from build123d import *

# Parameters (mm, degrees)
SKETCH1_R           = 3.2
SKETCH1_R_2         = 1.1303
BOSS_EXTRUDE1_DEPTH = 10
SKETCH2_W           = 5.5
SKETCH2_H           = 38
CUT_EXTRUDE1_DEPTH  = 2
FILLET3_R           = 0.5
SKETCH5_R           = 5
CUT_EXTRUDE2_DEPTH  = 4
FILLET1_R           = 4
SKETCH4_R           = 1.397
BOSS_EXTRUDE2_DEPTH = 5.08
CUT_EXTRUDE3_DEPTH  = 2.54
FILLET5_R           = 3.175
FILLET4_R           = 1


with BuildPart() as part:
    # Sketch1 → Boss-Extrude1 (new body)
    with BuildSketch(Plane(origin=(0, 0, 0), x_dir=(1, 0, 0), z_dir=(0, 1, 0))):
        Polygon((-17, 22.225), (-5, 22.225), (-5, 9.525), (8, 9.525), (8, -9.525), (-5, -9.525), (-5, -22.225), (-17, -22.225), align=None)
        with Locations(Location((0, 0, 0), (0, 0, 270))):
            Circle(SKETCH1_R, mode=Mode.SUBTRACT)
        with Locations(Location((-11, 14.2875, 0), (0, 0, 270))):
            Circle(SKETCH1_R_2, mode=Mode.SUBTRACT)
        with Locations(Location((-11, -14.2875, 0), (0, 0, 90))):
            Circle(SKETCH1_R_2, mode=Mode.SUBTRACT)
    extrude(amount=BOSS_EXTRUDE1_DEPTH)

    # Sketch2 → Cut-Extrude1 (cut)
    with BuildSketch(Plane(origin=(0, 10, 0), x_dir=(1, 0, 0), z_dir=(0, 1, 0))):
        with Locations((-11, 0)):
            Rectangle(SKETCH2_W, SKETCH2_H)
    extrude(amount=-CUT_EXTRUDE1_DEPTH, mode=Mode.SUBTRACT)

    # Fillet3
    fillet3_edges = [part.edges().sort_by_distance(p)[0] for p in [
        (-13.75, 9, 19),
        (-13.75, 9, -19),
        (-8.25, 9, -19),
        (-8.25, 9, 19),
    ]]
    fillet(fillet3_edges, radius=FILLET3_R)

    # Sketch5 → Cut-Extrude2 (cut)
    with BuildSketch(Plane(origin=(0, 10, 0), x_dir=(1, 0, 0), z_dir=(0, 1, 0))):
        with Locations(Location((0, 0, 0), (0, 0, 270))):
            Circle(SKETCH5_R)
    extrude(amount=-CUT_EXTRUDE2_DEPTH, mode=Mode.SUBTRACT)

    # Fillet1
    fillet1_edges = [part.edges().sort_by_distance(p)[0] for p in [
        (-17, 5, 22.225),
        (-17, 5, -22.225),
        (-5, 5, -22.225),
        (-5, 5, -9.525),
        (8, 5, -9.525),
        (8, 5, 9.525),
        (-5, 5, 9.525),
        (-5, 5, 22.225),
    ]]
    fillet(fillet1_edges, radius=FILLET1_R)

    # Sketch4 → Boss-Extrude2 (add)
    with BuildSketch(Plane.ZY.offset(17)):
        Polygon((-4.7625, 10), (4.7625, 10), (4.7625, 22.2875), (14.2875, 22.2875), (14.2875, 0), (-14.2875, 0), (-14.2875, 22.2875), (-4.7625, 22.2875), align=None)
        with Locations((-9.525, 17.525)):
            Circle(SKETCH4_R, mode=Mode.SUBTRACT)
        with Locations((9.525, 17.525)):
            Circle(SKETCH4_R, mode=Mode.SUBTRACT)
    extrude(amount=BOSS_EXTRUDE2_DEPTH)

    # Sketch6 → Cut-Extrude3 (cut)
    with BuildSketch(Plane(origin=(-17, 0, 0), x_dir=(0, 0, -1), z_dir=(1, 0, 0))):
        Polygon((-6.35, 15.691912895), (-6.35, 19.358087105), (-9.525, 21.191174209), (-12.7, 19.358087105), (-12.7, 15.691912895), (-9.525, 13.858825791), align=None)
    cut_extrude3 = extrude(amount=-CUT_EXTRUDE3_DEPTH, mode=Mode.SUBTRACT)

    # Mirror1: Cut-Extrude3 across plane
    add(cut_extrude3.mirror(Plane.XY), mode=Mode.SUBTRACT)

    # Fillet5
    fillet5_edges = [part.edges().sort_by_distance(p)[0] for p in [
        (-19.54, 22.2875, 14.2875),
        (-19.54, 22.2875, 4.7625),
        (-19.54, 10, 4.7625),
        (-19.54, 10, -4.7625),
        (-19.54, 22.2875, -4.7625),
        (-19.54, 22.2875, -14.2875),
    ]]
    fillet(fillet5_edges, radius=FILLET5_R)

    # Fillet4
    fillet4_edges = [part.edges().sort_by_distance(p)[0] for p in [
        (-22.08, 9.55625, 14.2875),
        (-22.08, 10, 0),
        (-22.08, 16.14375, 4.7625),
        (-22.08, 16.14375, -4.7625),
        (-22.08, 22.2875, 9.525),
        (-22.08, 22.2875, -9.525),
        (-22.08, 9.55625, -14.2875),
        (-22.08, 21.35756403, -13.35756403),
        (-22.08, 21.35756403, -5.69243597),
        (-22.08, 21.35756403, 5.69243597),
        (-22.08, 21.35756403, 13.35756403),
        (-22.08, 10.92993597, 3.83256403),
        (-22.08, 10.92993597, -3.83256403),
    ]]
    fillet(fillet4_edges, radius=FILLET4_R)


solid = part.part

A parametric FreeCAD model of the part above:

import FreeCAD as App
import Part
import Sketcher
Q = App.Units.Quantity


def edges_at(feature, points):
    """Names of the edges that pass closest to the given points."""
    edges = feature.Shape.Edges
    near = lambda p: min(range(len(edges)), key=lambda i: edges[i].distToShape(Part.Vertex(*p))[0])
    return sorted({f"Edge{near(p) + 1}" for p in points})

doc = App.newDocument("Part")
body = doc.addObject("PartDesign::Body", "Body")

# Sketch on XZ plane
sketch1 = body.newObject("Sketcher::SketchObject", "Sketch")
sketch1.AttachmentSupport = (doc.getObject("XZ_Plane"), [""])
sketch1.MapMode = "FlatFace"
sketch1.addGeometry([
    Part.LineSegment(App.Vector(-5, -22.2, 0), App.Vector(-17, -22.2, 0)),  # 0
    Part.LineSegment(App.Vector(-17, -22.2, 0), App.Vector(-17, 22.2, 0)),  # 1
    Part.LineSegment(App.Vector(-17, 22.2, 0), App.Vector(-5, 22.2, 0)),  # 2
    Part.LineSegment(App.Vector(-5, 22.2, 0), App.Vector(-5, 9.5, 0)),  # 3
    Part.LineSegment(App.Vector(-5, 9.5, 0), App.Vector(8, 9.5, 0)),  # 4
    Part.LineSegment(App.Vector(8, 9.5, 0), App.Vector(8, -9.5, 0)),  # 5
    Part.LineSegment(App.Vector(8, -9.5, 0), App.Vector(-5, -9.5, 0)),  # 6
    Part.LineSegment(App.Vector(-5, -9.5, 0), App.Vector(-5, -22.2, 0)),  # 7
    Part.Circle(App.Vector(0, 0, 0), App.Vector(0, 0, 1), 3.2),  # 8
    Part.Circle(App.Vector(-11, 14.3, 0), App.Vector(0, 0, 1), 1.1),  # 9
    Part.Circle(App.Vector(-11, -14.3, 0), App.Vector(0, 0, 1), 1.1),  # 10
], False)
sketch1.addConstraint([
    Sketcher.Constraint("Coincident", 0, 2, 1, 1),
    Sketcher.Constraint("Coincident", 1, 2, 2, 1),
    Sketcher.Constraint("Coincident", 2, 2, 3, 1),
    Sketcher.Constraint("Coincident", 3, 2, 4, 1),
    Sketcher.Constraint("Coincident", 4, 2, 5, 1),
    Sketcher.Constraint("Coincident", 5, 2, 6, 1),
    Sketcher.Constraint("Coincident", 6, 2, 7, 1),
    Sketcher.Constraint("Coincident", 7, 2, 0, 1),
    Sketcher.Constraint("Horizontal", 0),
    Sketcher.Constraint("Vertical", 1),
    Sketcher.Constraint("Horizontal", 2),
    Sketcher.Constraint("Vertical", 3),
    Sketcher.Constraint("Horizontal", 4),
    Sketcher.Constraint("Vertical", 5),
    Sketcher.Constraint("Horizontal", 6),
    Sketcher.Constraint("Vertical", 7),
    Sketcher.Constraint("Coincident", 8, 3, -1, 1),
    Sketcher.Constraint("Equal", 9, 10),
    Sketcher.Constraint("Symmetric", 9, 3, 10, 3, -1),
    Sketcher.Constraint("Symmetric", 3, 2, 6, 2, -1),
    Sketcher.Constraint("Equal", 3, 7),
    Sketcher.Constraint("Diameter", 8, Q("6.4 mm")),
    Sketcher.Constraint("DistanceX", 0, 2, 0, 1, Q("12 mm")),
    Sketcher.Constraint("DistanceX", 4, 1, 4, 2, Q("13 mm")),
    Sketcher.Constraint("DistanceY", 3, 2, 3, 1, Q("12.7 mm")),
    Sketcher.Constraint("DistanceX", 9, 3, -1, 1, Q("11 mm")),
    Sketcher.Constraint("DistanceX", 0, 2, -1, 1, Q("17 mm")),
    Sketcher.Constraint("Diameter", 9, Q("2.2606 mm")),
    Sketcher.Constraint("DistanceY", 1, 1, 1, 2, Q("44.45 mm")),
    Sketcher.Constraint("DistanceY", 10, 3, 9, 3, Q("28.575 mm")),
])
pad1 = body.newObject("PartDesign::Pad", "Pad")
pad1.Profile = sketch1
pad1.Length = 10
pad1.Reversed = True

# Sketch on XZ plane
sketch2 = body.newObject("Sketcher::SketchObject", "Sketch001")
sketch2.AttachmentSupport = (doc.getObject("XZ_Plane"), [""])
sketch2.MapMode = "FlatFace"
sketch2.AttachmentOffset = App.Placement(App.Vector(0, 0, -10), App.Rotation())
sketch2.addGeometry([
    Part.LineSegment(App.Vector(-14, -19, 0), App.Vector(-14, 19, 0)),
    Part.LineSegment(App.Vector(-14, 19, 0), App.Vector(-8, 19, 0)),
    Part.LineSegment(App.Vector(-8, 19, 0), App.Vector(-8, -19, 0)),
    Part.LineSegment(App.Vector(-8, -19, 0), App.Vector(-14, -19, 0)),
], False)
sketch2.addConstraint([
    Sketcher.Constraint("Coincident", 0, 2, 1, 1),
    Sketcher.Constraint("Coincident", 1, 2, 2, 1),
    Sketcher.Constraint("Coincident", 2, 2, 3, 1),
    Sketcher.Constraint("Coincident", 3, 2, 0, 1),
    Sketcher.Constraint("Vertical", 0),
    Sketcher.Constraint("Horizontal", 1),
    Sketcher.Constraint("Vertical", 2),
    Sketcher.Constraint("Horizontal", 3),
    Sketcher.Constraint("DistanceY", 0, 1, 0, 2, Q("38 mm")),
    Sketcher.Constraint("DistanceX", 1, 1, 1, 2, Q("5.5 mm")),
    Sketcher.Constraint("DistanceY", -1, 1, 0, 2, Q("19 mm")),
    Sketcher.Constraint("DistanceX", 0, 2, -1, 1, Q("13.75 mm")),
])
pocket1 = body.newObject("PartDesign::Pocket", "Pocket")
pocket1.Profile = sketch2
pocket1.Length = 2
pocket1.Reversed = True
doc.recompute()

fillet = body.newObject("PartDesign::Fillet", "Fillet")
fillet.Base = (pocket1, edges_at(pocket1, [
    (-13.75, 9, 19),
    (-13.75, 9, -19),
    (-8.25, 9, -19),
    (-8.25, 9, 19),
]))
fillet.Radius = 0.5

# Sketch on XZ plane
sketch3 = body.newObject("Sketcher::SketchObject", "Sketch002")
sketch3.AttachmentSupport = (doc.getObject("XZ_Plane"), [""])
sketch3.MapMode = "FlatFace"
sketch3.AttachmentOffset = App.Placement(App.Vector(0, 0, -10), App.Rotation())
sketch3.addGeometry(Part.Circle(App.Vector(0, 0, 0), App.Vector(0, 0, 1), 5), False)
sketch3.addConstraint([
    Sketcher.Constraint("Coincident", 0, 3, -1, 1),
    Sketcher.Constraint("Diameter", 0, Q("10 mm")),
])
pocket2 = body.newObject("PartDesign::Pocket", "Pocket001")
pocket2.Profile = sketch3
pocket2.Length = 4
pocket2.Reversed = True
doc.recompute()

fillet2 = body.newObject("PartDesign::Fillet", "Fillet001")
fillet2.Base = (pocket2, edges_at(pocket2, [
    (-17, 5, 22.225),
    (-17, 5, -22.225),
    (-5, 5, -22.225),
    (-5, 5, -9.525),
    (8, 5, -9.525),
    (8, 5, 9.525),
    (-5, 5, 9.525),
    (-5, 5, 22.225),
]))
fillet2.Radius = 4

# Sketch on YZ plane
sketch4 = body.newObject("Sketcher::SketchObject", "Sketch003")
sketch4.AttachmentSupport = (doc.getObject("YZ_Plane"), [""])
sketch4.MapMode = "FlatFace"
sketch4.AttachmentOffset = App.Placement(App.Vector(0, 0, -17), App.Rotation())
sketch4.addGeometry([
    Part.LineSegment(App.Vector(10, 4.8, 0), App.Vector(10, -4.8, 0)),  # 0
    Part.LineSegment(App.Vector(10, -4.8, 0), App.Vector(22.3, -4.8, 0)),  # 1
    Part.LineSegment(App.Vector(22.3, -4.8, 0), App.Vector(22.3, -14.3, 0)),  # 2
    Part.LineSegment(App.Vector(22.3, -14.3, 0), App.Vector(0, -14.3, 0)),  # 3
    Part.LineSegment(App.Vector(0, -14.3, 0), App.Vector(0, 14.3, 0)),  # 4
    Part.LineSegment(App.Vector(0, 14.3, 0), App.Vector(22.3, 14.3, 0)),  # 5
    Part.LineSegment(App.Vector(22.3, 14.3, 0), App.Vector(22.3, 4.8, 0)),  # 6
    Part.LineSegment(App.Vector(22.3, 4.8, 0), App.Vector(10, 4.8, 0)),  # 7
    Part.Circle(App.Vector(17.5, 9.5, 0), App.Vector(0, 0, 1), 1.4),  # 8
    Part.Circle(App.Vector(17.5, -9.5, 0), App.Vector(0, 0, 1), 1.4),  # 9
], False)
sketch4.addConstraint([
    Sketcher.Constraint("Coincident", 0, 2, 1, 1),
    Sketcher.Constraint("Coincident", 1, 2, 2, 1),
    Sketcher.Constraint("Coincident", 2, 2, 3, 1),
    Sketcher.Constraint("Coincident", 3, 2, 4, 1),
    Sketcher.Constraint("Coincident", 4, 2, 5, 1),
    Sketcher.Constraint("Coincident", 5, 2, 6, 1),
    Sketcher.Constraint("Coincident", 6, 2, 7, 1),
    Sketcher.Constraint("Coincident", 7, 2, 0, 1),
    Sketcher.Constraint("Vertical", 0),
    Sketcher.Constraint("Horizontal", 1),
    Sketcher.Constraint("Vertical", 2),
    Sketcher.Constraint("Horizontal", 3),
    Sketcher.Constraint("Vertical", 4),
    Sketcher.Constraint("Horizontal", 5),
    Sketcher.Constraint("Vertical", 6),
    Sketcher.Constraint("Horizontal", 7),
    Sketcher.Constraint("Equal", 8, 9),
    Sketcher.Constraint("Symmetric", 3, 2, 4, 2, -1, 1),
    Sketcher.Constraint("Symmetric", 8, 3, 9, 3, -1),
    Sketcher.Constraint("Symmetric", 1, 2, 6, 2, -1),
    Sketcher.Constraint("Equal", 0, 2),
    Sketcher.Constraint("Diameter", 8, Q("2.794 mm")),
    Sketcher.Constraint("DistanceX", -1, 1, 0, 2, Q("10 mm")),
    Sketcher.Constraint("DistanceY", 0, 2, 0, 1, Q("9.525 mm")),
    Sketcher.Constraint("DistanceY", 9, 3, 8, 3, Q("19.05 mm")),
    Sketcher.Constraint("DistanceX", 1, 1, 1, 2, Q("12.2875 mm")),
    Sketcher.Constraint("DistanceX", -1, 1, 8, 3, Q("17.525 mm")),
])
pad2 = body.newObject("PartDesign::Pad", "Pad001")
pad2.Profile = sketch4
pad2.Length = 5.08
pad2.Reversed = True

# Sketch on YZ plane
sketch5 = body.newObject("Sketcher::SketchObject", "Sketch004")
sketch5.AttachmentSupport = (doc.getObject("YZ_Plane"), [""])
sketch5.MapMode = "FlatFace"
sketch5.AttachmentOffset = App.Placement(App.Vector(0, 0, -17), App.Rotation())
sketch5.addGeometry([
    Part.LineSegment(App.Vector(15.7, 6.3, 0), App.Vector(19.4, 6.3, 0)),  # 0
    Part.LineSegment(App.Vector(19.4, 6.3, 0), App.Vector(21.2, 9.5, 0)),  # 1
    Part.LineSegment(App.Vector(21.2, 9.5, 0), App.Vector(19.4, 12.7, 0)),  # 2
    Part.LineSegment(App.Vector(19.4, 12.7, 0), App.Vector(15.7, 12.7, 0)),  # 3
    Part.LineSegment(App.Vector(15.7, 12.7, 0), App.Vector(13.9, 9.5, 0)),  # 4
    Part.LineSegment(App.Vector(13.9, 9.5, 0), App.Vector(15.7, 6.3, 0)),  # 5
], False)
sketch5.addConstraint([
    Sketcher.Constraint("Coincident", 0, 2, 1, 1),
    Sketcher.Constraint("Coincident", 1, 2, 2, 1),
    Sketcher.Constraint("Coincident", 2, 2, 3, 1),
    Sketcher.Constraint("Coincident", 3, 2, 4, 1),
    Sketcher.Constraint("Coincident", 4, 2, 5, 1),
    Sketcher.Constraint("Coincident", 5, 2, 0, 1),
    Sketcher.Constraint("Horizontal", 0),
    Sketcher.Constraint("Horizontal", 3),
    Sketcher.Constraint("Parallel", 1, 4),
    Sketcher.Constraint("Parallel", 2, 5),
    Sketcher.Constraint("Horizontal", 1, 2, 4, 2),
    Sketcher.Constraint("Vertical", 0, 2, 2, 2),
    Sketcher.Constraint("Vertical", 3, 2, 5, 2),
    Sketcher.Constraint("Angle", 1, Q("60 deg")),
    Sketcher.Constraint("DistanceY", -1, 1, 2, 2, Q("12.7 mm")),
    Sketcher.Constraint("DistanceY", -1, 1, 0, 2, Q("6.35 mm")),
    Sketcher.Constraint("DistanceX", 0, 1, 0, 2, Q("3.666174 mm")),
    Sketcher.Constraint("DistanceX", -1, 1, 0, 2, Q("19.358087 mm")),
])
pocket3 = body.newObject("PartDesign::Pocket", "Pocket002")
pocket3.Profile = sketch5
pocket3.Length = 2.54
doc.recompute()

mirrored = body.newObject("PartDesign::Mirrored", "Mirrored")
mirrored.Originals = [pocket3]
mirrored.MirrorPlane = (doc.getObject("XY_Plane"), [""])
body.Tip = mirrored
doc.recompute()

fillet3 = body.newObject("PartDesign::Fillet", "Fillet002")
fillet3.Base = (mirrored, edges_at(mirrored, [
    (-19.54, 22.288, 14.287),
    (-19.54, 22.288, 4.763),
    (-19.54, 10, 4.763),
    (-19.54, 10, -4.763),
    (-19.54, 22.288, -4.763),
    (-19.54, 22.288, -14.287),
]))
fillet3.Radius = 3.175
doc.recompute()

fillet4 = body.newObject("PartDesign::Fillet", "Fillet003")
fillet4.Base = (fillet3, edges_at(fillet3, [
    (-22.08, 9.556, 14.287),
    (-22.08, 10, 0),
    (-22.08, 16.144, 4.763),
    (-22.08, 16.144, -4.763),
    (-22.08, 22.288, 9.525),
    (-22.08, 22.288, -9.525),
    (-22.08, 9.556, -14.287),
    (-22.08, 21.358, -13.358),
    (-22.08, 21.358, -5.692),
    (-22.08, 21.358, 5.692),
    (-22.08, 21.358, 13.358),
    (-22.08, 10.93, 3.833),
    (-22.08, 10.93, -3.833),
]))
fillet4.Radius = 1

doc.recompute()
